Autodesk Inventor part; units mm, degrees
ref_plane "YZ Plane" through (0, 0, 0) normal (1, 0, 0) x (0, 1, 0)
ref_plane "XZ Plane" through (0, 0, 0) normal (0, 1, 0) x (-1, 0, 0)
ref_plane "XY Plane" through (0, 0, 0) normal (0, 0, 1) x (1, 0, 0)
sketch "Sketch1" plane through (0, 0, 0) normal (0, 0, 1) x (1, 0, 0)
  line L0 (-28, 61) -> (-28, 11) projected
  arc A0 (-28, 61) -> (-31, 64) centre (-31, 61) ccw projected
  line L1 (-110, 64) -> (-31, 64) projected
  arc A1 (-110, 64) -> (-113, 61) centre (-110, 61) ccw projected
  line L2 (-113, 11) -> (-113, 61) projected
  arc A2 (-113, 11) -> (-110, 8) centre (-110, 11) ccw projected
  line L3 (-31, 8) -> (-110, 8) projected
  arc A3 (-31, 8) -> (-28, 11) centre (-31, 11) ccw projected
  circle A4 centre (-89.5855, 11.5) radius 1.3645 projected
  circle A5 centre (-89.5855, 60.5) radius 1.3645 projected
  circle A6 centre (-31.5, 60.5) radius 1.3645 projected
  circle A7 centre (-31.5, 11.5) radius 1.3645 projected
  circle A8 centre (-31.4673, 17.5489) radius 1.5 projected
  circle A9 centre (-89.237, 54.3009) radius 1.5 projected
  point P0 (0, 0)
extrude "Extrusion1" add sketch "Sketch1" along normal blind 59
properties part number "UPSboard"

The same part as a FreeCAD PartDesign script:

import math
import FreeCAD as App
import Part
import Sketcher
from FreeCAD import Vector

doc = App.newDocument("Part")
params = doc.addObject("Spreadsheet::Sheet", "Params")
for row, (alias, value) in enumerate([
    ("sketch1_diameter", "3 mm"),
    ("sketch1_radius", "3 mm"),
    ("sketch1_width", "79 mm"),
    ("sketch1_height", "50 mm"),
    ("pad1_length", "59 mm"),
], start=1):
    params.set(f"A{row}", alias)
    params.set(f"B{row}", "=" + value)
    params.setAlias(f"B{row}", alias)

body = doc.addObject("PartDesign::Body", "Body")

# Sketch on XY plane
sketch1 = body.newObject("Sketcher::SketchObject", "Sketch")
sketch1.AttachmentSupport = (doc.getObject("XY_Plane"), [""])
sketch1.MapMode = "FlatFace"
sketch1.addGeometry(Part.LineSegment(Vector(-28, 11, 0), Vector(-28, 61, 0)), False)
sketch1.addGeometry(Part.ArcOfCircle(Part.Circle(Vector(-31, 61, 0), Vector(0, 0, 1), 3), math.radians(0), math.radians(90)), False)
sketch1.addGeometry(Part.LineSegment(Vector(-31, 64, 0), Vector(-110, 64, 0)), False)
sketch1.addGeometry(Part.ArcOfCircle(Part.Circle(Vector(-110, 61, 0), Vector(0, 0, 1), 3), math.radians(90), math.radians(180)), False)
sketch1.addGeometry(Part.LineSegment(Vector(-113, 61, 0), Vector(-113, 11, 0)), False)
sketch1.addGeometry(Part.ArcOfCircle(Part.Circle(Vector(-110, 11, 0), Vector(0, 0, 1), 3), math.radians(180), math.radians(270)), False)
sketch1.addGeometry(Part.LineSegment(Vector(-110, 8, 0), Vector(-31, 8, 0)), False)
sketch1.addGeometry(Part.ArcOfCircle(Part.Circle(Vector(-31, 11, 0), Vector(0, 0, 1), 3), math.radians(-90), math.radians(0)), False)
sketch1.addGeometry(Part.Circle(Vector(-89.5855, 11.5, 0), Vector(0, 0, 1), 1.3645), False)
sketch1.addGeometry(Part.Circle(Vector(-31.5, 11.5, 0), Vector(0, 0, 1), 1.3645), False)
sketch1.addGeometry(Part.Circle(Vector(-31.4673, 17.5489, 0), Vector(0, 0, 1), 1.5), False)
sketch1.addGeometry(Part.Circle(Vector(-89.237, 54.3009, 0), Vector(0, 0, 1), 1.5), False)
sketch1.addGeometry(Part.Circle(Vector(-89.5855, 60.5, 0), Vector(0, 0, 1), 1.3645), False)
sketch1.addGeometry(Part.Circle(Vector(-31.5, 60.5, 0), Vector(0, 0, 1), 1.3645), False)
sketch1.addConstraint(Sketcher.Constraint("Tangent", 0, 2, 1, 1))
sketch1.addConstraint(Sketcher.Constraint("Tangent", 1, 2, 2, 1))
sketch1.addConstraint(Sketcher.Constraint("Tangent", 2, 2, 3, 1))
sketch1.addConstraint(Sketcher.Constraint("Tangent", 3, 2, 4, 1))
sketch1.addConstraint(Sketcher.Constraint("Tangent", 4, 2, 5, 1))
sketch1.addConstraint(Sketcher.Constraint("Tangent", 5, 2, 6, 1))
sketch1.addConstraint(Sketcher.Constraint("Tangent", 6, 2, 7, 1))
sketch1.addConstraint(Sketcher.Constraint("Tangent", 7, 2, 0, 1))
sketch1.addConstraint(Sketcher.Constraint("Vertical", 0))
sketch1.addConstraint(Sketcher.Constraint("Horizontal", 2))
sketch1.addConstraint(Sketcher.Constraint("Vertical", 4))
sketch1.addConstraint(Sketcher.Constraint("Horizontal", 6))
sketch1.addConstraint(Sketcher.Constraint("Equal", 1, 3))
sketch1.addConstraint(Sketcher.Constraint("Equal", 3, 5))
sketch1.addConstraint(Sketcher.Constraint("Equal", 5, 7))
sketch1.addConstraint(Sketcher.Constraint("Equal", 8, 9))
sketch1.addConstraint(Sketcher.Constraint("Equal", 10, 11))
sketch1.addConstraint(Sketcher.Constraint("Equal", 9, 12))
sketch1.addConstraint(Sketcher.Constraint("Equal", 12, 13))
sketch1.addConstraint(Sketcher.Constraint("Horizontal", 8, 3, 9, 3))
sketch1.addConstraint(Sketcher.Constraint("Horizontal", 12, 3, 13, 3))
sketch1.addConstraint(Sketcher.Constraint("Vertical", 8, 3, 12, 3))
sketch1.addConstraint(Sketcher.Constraint("Vertical", 9, 3, 13, 3))
sketch1.addConstraint(Sketcher.Constraint("Diameter", 10, 3.0))
sketch1.addConstraint(Sketcher.Constraint("Radius", 1, 3.0))
sketch1.addConstraint(Sketcher.Constraint("DistanceX", 2, 2, 2, 1, 79.0))
sketch1.addConstraint(Sketcher.Constraint("DistanceY", 0, 1, 0, 2, 50.0))
sketch1.addConstraint(Sketcher.Constraint("Diameter", 8, 2.729))
sketch1.addConstraint(Sketcher.Constraint("DistanceX", 1, 3, -1, 1, 31.0))
sketch1.addConstraint(Sketcher.Constraint("DistanceY", -1, 1, 1, 3, 61.0))
sketch1.addConstraint(Sketcher.Constraint("DistanceY", 8, 3, 12, 3, 49.0))
sketch1.addConstraint(Sketcher.Constraint("DistanceY", -1, 1, 8, 3, 11.5))
sketch1.addConstraint(Sketcher.Constraint("DistanceX", 9, 3, -1, 1, 31.5))
sketch1.addConstraint(Sketcher.Constraint("DistanceY", -1, 1, 10, 3, 17.549))
sketch1.addConstraint(Sketcher.Constraint("DistanceX", 11, 3, -1, 1, 89.237))
sketch1.addConstraint(Sketcher.Constraint("DistanceY", -1, 1, 11, 3, 54.301))
sketch1.addConstraint(Sketcher.Constraint("DistanceX", 8, 3, -1, 1, 89.5855))
sketch1.addConstraint(Sketcher.Constraint("DistanceX", 10, 3, -1, 1, 31.4673))
sketch1.setExpression("Constraints[23]", "Params.sketch1_diameter")
sketch1.setExpression("Constraints[24]", "Params.sketch1_radius")
sketch1.setExpression("Constraints[25]", "Params.sketch1_width")
sketch1.setExpression("Constraints[26]", "Params.sketch1_height")
pad1 = body.newObject("PartDesign::Pad", "Pad")
pad1.Profile = sketch1
pad1.setExpression("Length", "Params.pad1_length")

doc.recompute()
